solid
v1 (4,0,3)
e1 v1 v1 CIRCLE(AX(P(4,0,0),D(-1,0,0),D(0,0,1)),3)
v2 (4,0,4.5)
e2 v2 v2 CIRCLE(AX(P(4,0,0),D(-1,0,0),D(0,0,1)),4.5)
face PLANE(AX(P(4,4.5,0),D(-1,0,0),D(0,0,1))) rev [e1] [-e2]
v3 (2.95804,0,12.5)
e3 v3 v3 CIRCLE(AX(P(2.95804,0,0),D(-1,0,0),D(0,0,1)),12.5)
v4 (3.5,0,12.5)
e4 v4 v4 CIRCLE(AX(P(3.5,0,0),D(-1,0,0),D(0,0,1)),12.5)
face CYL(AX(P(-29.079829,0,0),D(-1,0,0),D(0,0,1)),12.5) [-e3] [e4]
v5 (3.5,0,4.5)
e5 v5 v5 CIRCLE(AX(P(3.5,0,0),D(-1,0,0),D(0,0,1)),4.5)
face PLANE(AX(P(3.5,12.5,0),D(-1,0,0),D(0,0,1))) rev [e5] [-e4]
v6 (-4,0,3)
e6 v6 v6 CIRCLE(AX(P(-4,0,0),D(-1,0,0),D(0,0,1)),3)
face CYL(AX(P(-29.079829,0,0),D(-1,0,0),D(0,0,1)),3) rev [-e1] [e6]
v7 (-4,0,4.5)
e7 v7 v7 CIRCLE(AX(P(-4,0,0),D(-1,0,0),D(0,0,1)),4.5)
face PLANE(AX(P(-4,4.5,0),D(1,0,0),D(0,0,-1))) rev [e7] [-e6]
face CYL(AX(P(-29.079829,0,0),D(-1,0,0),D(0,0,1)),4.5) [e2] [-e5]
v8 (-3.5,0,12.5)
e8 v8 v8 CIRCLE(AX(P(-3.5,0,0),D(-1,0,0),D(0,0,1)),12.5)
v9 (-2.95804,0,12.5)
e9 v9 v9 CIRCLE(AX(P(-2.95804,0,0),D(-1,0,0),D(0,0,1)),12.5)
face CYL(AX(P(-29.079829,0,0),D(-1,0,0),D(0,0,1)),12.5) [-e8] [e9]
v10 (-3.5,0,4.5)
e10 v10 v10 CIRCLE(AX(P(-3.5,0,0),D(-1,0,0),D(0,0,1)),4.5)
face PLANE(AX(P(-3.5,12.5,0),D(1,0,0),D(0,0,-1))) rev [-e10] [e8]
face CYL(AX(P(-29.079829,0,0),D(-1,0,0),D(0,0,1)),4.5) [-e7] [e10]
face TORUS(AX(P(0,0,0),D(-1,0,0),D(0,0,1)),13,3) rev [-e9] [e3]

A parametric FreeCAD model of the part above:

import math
import FreeCAD as App
import Part
import Sketcher
Q = App.Units.Quantity

doc = App.newDocument("Part")
body = doc.addObject("PartDesign::Body", "Body")

# Sketch on XY plane
sketch1 = body.newObject("Sketcher::SketchObject", "Sketch")
sketch1.AttachmentSupport = (doc.getObject("XY_Plane"), [""])
sketch1.MapMode = "FlatFace"
sketch1.addGeometry([
    Part.LineSegment(App.Vector(3.5, 12.5, 0), App.Vector(3, 12.5, 0)),  # 0
    Part.ArcOfCircle(Part.Circle(App.Vector(0, 13, 0), App.Vector(0, 0, 1), 3), math.radians(-170), math.radians(-10)),  # 1
    Part.LineSegment(App.Vector(-3, 12.5, 0), App.Vector(-3.5, 12.5, 0)),  # 2
    Part.LineSegment(App.Vector(-3.5, 12.5, 0), App.Vector(-3.5, 4.5, 0)),  # 3
    Part.LineSegment(App.Vector(-3.5, 4.5, 0), App.Vector(-4, 4.5, 0)),  # 4
    Part.LineSegment(App.Vector(-4, 4.5, 0), App.Vector(-4, 3, 0)),  # 5
    Part.LineSegment(App.Vector(-4, 3, 0), App.Vector(4, 3, 0)),  # 6
    Part.LineSegment(App.Vector(4, 3, 0), App.Vector(4, 4.5, 0)),  # 7
    Part.LineSegment(App.Vector(4, 4.5, 0), App.Vector(3.5, 4.5, 0)),  # 8
    Part.LineSegment(App.Vector(3.5, 4.5, 0), App.Vector(3.5, 12.5, 0)),  # 9
], False)
sketch1.addConstraint([
    Sketcher.Constraint("Coincident", 0, 2, 1, 2),
    Sketcher.Constraint("Coincident", 1, 1, 2, 1),
    Sketcher.Constraint("Coincident", 2, 2, 3, 1),
    Sketcher.Constraint("Coincident", 3, 2, 4, 1),
    Sketcher.Constraint("Coincident", 4, 2, 5, 1),
    Sketcher.Constraint("Coincident", 5, 2, 6, 1),
    Sketcher.Constraint("Coincident", 6, 2, 7, 1),
    Sketcher.Constraint("Coincident", 7, 2, 8, 1),
    Sketcher.Constraint("Coincident", 8, 2, 9, 1),
    Sketcher.Constraint("Coincident", 9, 2, 0, 1),
    Sketcher.Constraint("Horizontal", 0),
    Sketcher.Constraint("Horizontal", 2),
    Sketcher.Constraint("Vertical", 3),
    Sketcher.Constraint("Horizontal", 4),
    Sketcher.Constraint("Vertical", 5),
    Sketcher.Constraint("Horizontal", 6),
    Sketcher.Constraint("Vertical", 7),
    Sketcher.Constraint("Horizontal", 8),
    Sketcher.Constraint("Vertical", 9),
    Sketcher.Constraint("Symmetric", 0, 2, 1, 1, -2),
    Sketcher.Constraint("Symmetric", 4, 2, 7, 2, -2),
    Sketcher.Constraint("Equal", 0, 2),
    Sketcher.Constraint("Equal", 6, 3),
    Sketcher.Constraint("Radius", 1, Q("3 mm")),
    Sketcher.Constraint("DistanceX", 6, 1, 6, 2, Q("8 mm")),
    Sketcher.Constraint("DistanceX", 4, 2, 4, 1, Q("0.5 mm")),
    Sketcher.Constraint("DistanceY", 5, 2, 5, 1, Q("1.5 mm")),
    Sketcher.Constraint("DistanceY", -1, 1, 1, 3, Q("13 mm")),
    Sketcher.Constraint("DistanceY", -1, 1, 5, 2, Q("3 mm")),
])
revolution = body.newObject("PartDesign::Revolution", "Revolution")
revolution.Profile = sketch1
revolution.ReferenceAxis = (sketch1, ["H_Axis"])
revolution.Angle = 360

doc.recompute()
